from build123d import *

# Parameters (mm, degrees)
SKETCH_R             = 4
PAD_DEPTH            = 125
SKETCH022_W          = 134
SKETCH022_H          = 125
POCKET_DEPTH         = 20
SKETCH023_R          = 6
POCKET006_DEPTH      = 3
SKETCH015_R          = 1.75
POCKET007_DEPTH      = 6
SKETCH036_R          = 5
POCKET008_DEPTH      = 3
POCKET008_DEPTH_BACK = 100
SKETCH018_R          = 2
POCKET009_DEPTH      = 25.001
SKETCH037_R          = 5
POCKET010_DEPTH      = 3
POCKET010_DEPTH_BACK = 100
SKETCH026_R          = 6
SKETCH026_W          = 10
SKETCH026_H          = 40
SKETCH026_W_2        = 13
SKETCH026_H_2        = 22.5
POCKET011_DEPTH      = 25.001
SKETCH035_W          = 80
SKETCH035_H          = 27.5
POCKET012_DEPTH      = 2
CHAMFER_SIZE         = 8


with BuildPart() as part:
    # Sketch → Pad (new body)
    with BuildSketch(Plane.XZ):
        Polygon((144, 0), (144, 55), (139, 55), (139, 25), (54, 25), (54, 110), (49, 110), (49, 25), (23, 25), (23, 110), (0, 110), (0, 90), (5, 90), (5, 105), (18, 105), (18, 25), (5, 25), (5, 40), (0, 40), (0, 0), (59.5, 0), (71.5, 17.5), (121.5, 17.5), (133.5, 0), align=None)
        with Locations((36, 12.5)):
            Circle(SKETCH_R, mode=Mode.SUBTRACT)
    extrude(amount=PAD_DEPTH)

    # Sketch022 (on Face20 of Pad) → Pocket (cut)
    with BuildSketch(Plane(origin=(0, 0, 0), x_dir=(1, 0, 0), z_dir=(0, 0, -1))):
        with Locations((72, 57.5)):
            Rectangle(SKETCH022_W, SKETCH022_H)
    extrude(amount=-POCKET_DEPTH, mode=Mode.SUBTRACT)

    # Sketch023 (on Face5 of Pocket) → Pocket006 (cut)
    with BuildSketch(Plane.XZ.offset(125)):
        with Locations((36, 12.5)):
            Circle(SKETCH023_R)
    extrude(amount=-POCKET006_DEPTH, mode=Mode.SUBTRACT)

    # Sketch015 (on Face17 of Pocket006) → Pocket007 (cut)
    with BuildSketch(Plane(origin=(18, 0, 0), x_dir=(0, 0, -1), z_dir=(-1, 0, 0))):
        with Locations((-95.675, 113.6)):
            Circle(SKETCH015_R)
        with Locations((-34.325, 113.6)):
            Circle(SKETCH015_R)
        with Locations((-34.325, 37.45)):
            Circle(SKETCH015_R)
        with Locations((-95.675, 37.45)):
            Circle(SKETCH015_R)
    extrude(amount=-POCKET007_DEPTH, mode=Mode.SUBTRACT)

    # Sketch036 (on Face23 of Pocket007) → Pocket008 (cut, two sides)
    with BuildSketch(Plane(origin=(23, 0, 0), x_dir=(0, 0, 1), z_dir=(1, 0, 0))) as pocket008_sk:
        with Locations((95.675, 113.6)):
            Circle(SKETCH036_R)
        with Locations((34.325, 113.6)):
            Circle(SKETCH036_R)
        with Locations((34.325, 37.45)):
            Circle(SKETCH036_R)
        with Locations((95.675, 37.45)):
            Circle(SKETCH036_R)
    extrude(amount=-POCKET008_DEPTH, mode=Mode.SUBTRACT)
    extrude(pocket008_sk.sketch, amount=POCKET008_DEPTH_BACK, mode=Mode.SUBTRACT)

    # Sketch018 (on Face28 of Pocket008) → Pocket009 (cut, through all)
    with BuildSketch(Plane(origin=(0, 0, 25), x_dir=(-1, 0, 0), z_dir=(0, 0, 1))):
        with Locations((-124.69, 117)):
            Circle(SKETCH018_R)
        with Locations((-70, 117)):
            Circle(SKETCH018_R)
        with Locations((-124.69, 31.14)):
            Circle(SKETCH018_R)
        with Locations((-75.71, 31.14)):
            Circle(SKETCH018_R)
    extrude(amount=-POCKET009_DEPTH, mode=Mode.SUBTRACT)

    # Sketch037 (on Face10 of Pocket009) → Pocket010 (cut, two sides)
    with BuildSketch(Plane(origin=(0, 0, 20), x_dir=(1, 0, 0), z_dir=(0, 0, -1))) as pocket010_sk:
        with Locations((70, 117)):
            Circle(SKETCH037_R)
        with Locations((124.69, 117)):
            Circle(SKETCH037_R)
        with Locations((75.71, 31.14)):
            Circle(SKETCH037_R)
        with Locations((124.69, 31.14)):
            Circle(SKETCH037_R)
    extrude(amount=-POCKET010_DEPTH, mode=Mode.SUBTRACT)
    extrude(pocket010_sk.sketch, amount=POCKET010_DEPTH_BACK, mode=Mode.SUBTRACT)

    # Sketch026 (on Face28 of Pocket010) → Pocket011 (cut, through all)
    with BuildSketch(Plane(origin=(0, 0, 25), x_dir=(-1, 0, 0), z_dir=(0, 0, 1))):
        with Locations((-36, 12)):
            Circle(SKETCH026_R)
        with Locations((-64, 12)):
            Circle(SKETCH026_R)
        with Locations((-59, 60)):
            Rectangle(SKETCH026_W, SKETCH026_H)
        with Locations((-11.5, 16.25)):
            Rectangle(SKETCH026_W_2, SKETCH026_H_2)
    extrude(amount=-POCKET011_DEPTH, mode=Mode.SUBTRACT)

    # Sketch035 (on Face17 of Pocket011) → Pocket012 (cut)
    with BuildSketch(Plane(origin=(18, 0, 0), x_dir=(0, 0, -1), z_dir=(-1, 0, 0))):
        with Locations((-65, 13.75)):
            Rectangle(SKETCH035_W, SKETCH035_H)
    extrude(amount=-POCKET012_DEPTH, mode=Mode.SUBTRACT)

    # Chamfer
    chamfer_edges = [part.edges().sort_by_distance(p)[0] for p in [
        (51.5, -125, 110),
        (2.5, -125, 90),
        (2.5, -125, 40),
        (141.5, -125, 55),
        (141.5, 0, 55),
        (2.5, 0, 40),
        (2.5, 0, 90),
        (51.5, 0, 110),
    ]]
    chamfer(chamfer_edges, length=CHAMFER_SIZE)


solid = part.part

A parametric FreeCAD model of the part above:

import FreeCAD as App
import Part
import Sketcher

V = App.Vector
Q = App.Units.Quantity


def edges_at(feature, points):
    """Names of the edges that pass closest to the given points."""
    edges = feature.Shape.Edges
    near = lambda p: min(range(len(edges)), key=lambda i: edges[i].distToShape(Part.Vertex(*p))[0])
    return sorted({f"Edge{near(p) + 1}" for p in points})

doc = App.newDocument("Part")
body = doc.addObject("PartDesign::Body", "Body")

sketch1 = body.newObject("Sketcher::SketchObject", "Sketch")
sketch1.AttachmentSupport = (doc.getObject("XZ_Plane"), [""])
sketch1.MapMode = "FlatFace"
sketch1.addGeometry([
    Part.LineSegment(V(144, 0, 0), V(144, 55, 0)),
    Part.LineSegment(V(144, 55, 0), V(139, 55, 0)),
    Part.LineSegment(V(139, 55, 0), V(139, 25, 0)),
    Part.LineSegment(V(139, 25, 0), V(54, 25, 0)),
    Part.LineSegment(V(54, 25, 0), V(54, 110, 0)),
    Part.LineSegment(V(54, 110, 0), V(49, 110, 0)),
    Part.LineSegment(V(49, 110, 0), V(49, 25, 0)),
    Part.LineSegment(V(49, 25, 0), V(23, 25, 0)),
    Part.LineSegment(V(23, 25, 0), V(23, 110, 0)),
    Part.LineSegment(V(23, 110, 0), V(0, 110, 0)),
    Part.LineSegment(V(0, 110, 0), V(0, 90, 0)),
    Part.LineSegment(V(0, 90, 0), V(5, 90, 0)),
    Part.LineSegment(V(5, 90, 0), V(5, 105, 0)),
    Part.LineSegment(V(5, 105, 0), V(18, 105, 0)),
    Part.LineSegment(V(18, 105, 0), V(18, 25, 0)),
    Part.LineSegment(V(18, 25, 0), V(5, 25, 0)),
    Part.LineSegment(V(5, 25, 0), V(5, 40, 0)),
    Part.LineSegment(V(5, 40, 0), V(0, 40, 0)),
    Part.LineSegment(V(0, 40, 0), V(0, 0, 0)),
    Part.LineSegment(V(0, 0, 0), V(59.5, 0, 0)),
    Part.LineSegment(V(59.5, 0, 0), V(71.5, 17.5, 0)),
    Part.LineSegment(V(71.5, 17.5, 0), V(121.5, 17.5, 0)),
    Part.LineSegment(V(121.5, 17.5, 0), V(133.5, 0, 0)),
    Part.LineSegment(V(133.5, 0, 0), V(144, 0, 0)),
    Part.Circle(V(36, 12.5, 0), V(0, 0, 1), 4),
], False)
sketch1.addConstraint([
    Sketcher.Constraint("Coincident", 0, 2, 1, 1),
    Sketcher.Constraint("Coincident", 1, 2, 2, 1),
    Sketcher.Constraint("Coincident", 2, 2, 3, 1),
    Sketcher.Constraint("Coincident", 3, 2, 4, 1),
    Sketcher.Constraint("Coincident", 4, 2, 5, 1),
    Sketcher.Constraint("Coincident", 5, 2, 6, 1),
    Sketcher.Constraint("Coincident", 6, 2, 7, 1),
    Sketcher.Constraint("Coincident", 7, 2, 8, 1),
    Sketcher.Constraint("Coincident", 8, 2, 9, 1),
    Sketcher.Constraint("Coincident", 9, 2, 10, 1),
    Sketcher.Constraint("Coincident", 10, 2, 11, 1),
    Sketcher.Constraint("Coincident", 11, 2, 12, 1),
    Sketcher.Constraint("Coincident", 12, 2, 13, 1),
    Sketcher.Constraint("Coincident", 13, 2, 14, 1),
    Sketcher.Constraint("Coincident", 14, 2, 15, 1),
    Sketcher.Constraint("Coincident", 15, 2, 16, 1),
    Sketcher.Constraint("Coincident", 16, 2, 17, 1),
    Sketcher.Constraint("Coincident", 17, 2, 18, 1),
    Sketcher.Constraint("Coincident", 18, 2, 19, 1),
    Sketcher.Constraint("Coincident", 19, 2, 20, 1),
    Sketcher.Constraint("Coincident", 20, 2, 21, 1),
    Sketcher.Constraint("Coincident", 21, 2, 22, 1),
    Sketcher.Constraint("Coincident", 22, 2, 23, 1),
    Sketcher.Constraint("Coincident", 23, 2, 0, 1),
    Sketcher.Constraint("Vertical", 0),
    Sketcher.Constraint("Horizontal", 1),
    Sketcher.Constraint("Vertical", 2),
    Sketcher.Constraint("Horizontal", 3),
    Sketcher.Constraint("Vertical", 4),
    Sketcher.Constraint("Horizontal", 5),
    Sketcher.Constraint("Vertical", 6),
    Sketcher.Constraint("Horizontal", 7),
    Sketcher.Constraint("Vertical", 8),
    Sketcher.Constraint("Horizontal", 9),
    Sketcher.Constraint("Vertical", 10),
    Sketcher.Constraint("Horizontal", 11),
    Sketcher.Constraint("Vertical", 12),
    Sketcher.Constraint("Horizontal", 13),
    Sketcher.Constraint("Vertical", 14),
    Sketcher.Constraint("Horizontal", 15),
    Sketcher.Constraint("Vertical", 16),
    Sketcher.Constraint("Horizontal", 17),
    Sketcher.Constraint("Vertical", 18),
    Sketcher.Constraint("Horizontal", 19),
    Sketcher.Constraint("Horizontal", 21),
    Sketcher.Constraint("Horizontal", 23),
    Sketcher.Constraint("Coincident", 18, 2, -1, 1),
    Sketcher.Constraint("PointOnObject", 9, 2, -2),
    Sketcher.Constraint("PointOnObject", 22, 2, -1),
    Sketcher.Constraint("Horizontal", 3, 2, 6, 2),
    Sketcher.Constraint("Horizontal", 5, 2, 8, 2),
    Sketcher.Constraint("Horizontal", 7, 2, 14, 2),
    Sketcher.Constraint("Vertical", 12, 2, 15, 2),
    Sketcher.Constraint("Equal", 1, 5),
    Sketcher.Constraint("Equal", 5, 11),
    Sketcher.Constraint("Equal", 3, 4),
    Sketcher.Constraint("Equal", 12, 16),
    Sketcher.Constraint("Equal", 20, 22),
    Sketcher.Constraint("Diameter", 24, Q("8 mm")),
    Sketcher.Constraint("DistanceX", 1, 2, 1, 1, Q("5 mm")),
    Sketcher.Constraint("DistanceX", 3, 2, 3, 1, Q("85 mm")),
    Sketcher.Constraint("DistanceX", 7, 2, 7, 1, Q("26 mm")),
    Sketcher.Constraint("DistanceX", 9, 2, 9, 1, Q("23 mm")),
    Sketcher.Constraint("DistanceX", 13, 1, 13, 2, Q("13 mm")),
    Sketcher.Constraint("DistanceX", 21, 1, 21, 2, Q("50 mm")),
    Sketcher.Constraint("DistanceY", 0, 1, 0, 2, Q("55 mm")),
    Sketcher.Constraint("DistanceY", 2, 2, 2, 1, Q("30 mm")),
    Sketcher.Constraint("DistanceY", 10, 2, 10, 1, Q("20 mm")),
    Sketcher.Constraint("DistanceY", 12, 1, 12, 2, Q("15 mm")),
    Sketcher.Constraint("DistanceX", 19, 1, 19, 2, Q("59.5 mm")),
    Sketcher.Constraint("DistanceX", 23, 1, 23, 2, Q("10.5 mm")),
    Sketcher.Constraint("DistanceX", -1, 1, 24, 3, Q("36 mm")),
    Sketcher.Constraint("DistanceY", 24, 3, 20, 2, Q("5 mm")),
    Sketcher.Constraint("DistanceY", -1, 1, 24, 3, Q("12.5 mm")),
])
pad1 = body.newObject("PartDesign::Pad", "Pad")
pad1.Profile = sketch1
pad1.Length = 125

sketch2 = body.newObject("Sketcher::SketchObject", "Sketch001")
sketch2.AttachmentSupport = (doc.getObject("XY_Plane"), [""])
sketch2.MapMode = "FlatFace"
sketch2.addGeometry([
    Part.LineSegment(V(5, -120, 0), V(5, 5, 0)),
    Part.LineSegment(V(5, 5, 0), V(139, 5, 0)),
    Part.LineSegment(V(139, 5, 0), V(139, -120, 0)),
    Part.LineSegment(V(139, -120, 0), V(5, -120, 0)),
], False)
sketch2.addConstraint([
    Sketcher.Constraint("Coincident", 0, 2, 1, 1),
    Sketcher.Constraint("Coincident", 1, 2, 2, 1),
    Sketcher.Constraint("Coincident", 2, 2, 3, 1),
    Sketcher.Constraint("Coincident", 3, 2, 0, 1),
    Sketcher.Constraint("Vertical", 0),
    Sketcher.Constraint("Horizontal", 1),
    Sketcher.Constraint("Vertical", 2),
    Sketcher.Constraint("Horizontal", 3),
    Sketcher.Constraint("DistanceX", 1, 1, 1, 2, Q("134 mm")),
    Sketcher.Constraint("DistanceY", 0, 1, 0, 2, Q("125 mm")),
    Sketcher.Constraint("DistanceX", -1, 1, 0, 2, Q("5 mm")),
    Sketcher.Constraint("DistanceY", -1, 1, 0, 2, Q("5 mm")),
])
pocket1 = body.newObject("PartDesign::Pocket", "Pocket")
pocket1.Profile = sketch2
pocket1.Length = 20
pocket1.Reversed = True

sketch3 = body.newObject("Sketcher::SketchObject", "Sketch002")
sketch3.AttachmentSupport = (doc.getObject("XZ_Plane"), [""])
sketch3.MapMode = "FlatFace"
sketch3.AttachmentOffset = App.Placement(V(0, 0, 125), App.Rotation())
sketch3.addGeometry(Part.Circle(V(36, 12, 0), V(0, 0, 1), 6), False)
sketch3.addConstraint([
    Sketcher.Constraint("Diameter", 0, Q("12 mm")),
    Sketcher.Constraint("DistanceX", -1, 1, 0, 3, Q("36 mm")),
    Sketcher.Constraint("DistanceY", -1, 1, 0, 3, Q("12.5 mm")),
])
pocket2 = body.newObject("PartDesign::Pocket", "Pocket001")
pocket2.Profile = sketch3
pocket2.Length = 3

sketch4 = body.newObject("Sketcher::SketchObject", "Sketch003")
sketch4.AttachmentSupport = (doc.getObject("YZ_Plane"), [""])
sketch4.MapMode = "FlatFace"
sketch4.AttachmentOffset = App.Placement(V(0, 0, 18), App.Rotation())
sketch4.addGeometry([
    Part.Circle(V(-113.6, 95.7, 0), V(0, 0, 1), 1.8),
    Part.Circle(V(-113.6, 34.3, 0), V(0, 0, 1), 1.8),
    Part.Circle(V(-37.5, 34.3, 0), V(0, 0, 1), 1.8),
    Part.Circle(V(-37.5, 95.7, 0), V(0, 0, 1), 1.8),
], False)
sketch4.addConstraint([
    Sketcher.Constraint("Equal", 0, 1),
    Sketcher.Constraint("Equal", 1, 2),
    Sketcher.Constraint("Equal", 2, 3),
    Sketcher.Constraint("Horizontal", 1, 3, 2, 3),
    Sketcher.Constraint("Horizontal", 0, 3, 3, 3),
    Sketcher.Constraint("Vertical", 0, 3, 1, 3),
    Sketcher.Constraint("Vertical", 2, 3, 3, 3),
    Sketcher.Constraint("Diameter", 0, Q("3.5 mm")),
    Sketcher.Constraint("DistanceX", 0, 3, -1, 1, Q("113.6 mm")),
    Sketcher.Constraint("DistanceX", 2, 3, -1, 1, Q("37.45 mm")),
    Sketcher.Constraint("DistanceY", 1, 3, 0, 3, Q("61.35 mm")),
    Sketcher.Constraint("DistanceY", -1, 1, 0, 3, Q("95.675 mm")),
])
pocket3 = body.newObject("PartDesign::Pocket", "Pocket002")
pocket3.Profile = sketch4
pocket3.Length = 6
pocket3.Reversed = True

sketch5 = body.newObject("Sketcher::SketchObject", "Sketch004")
sketch5.AttachmentSupport = (doc.getObject("YZ_Plane"), [""])
sketch5.MapMode = "FlatFace"
sketch5.AttachmentOffset = App.Placement(V(0, 0, 23), App.Rotation())
sketch5.addGeometry([
    Part.Circle(V(-114, 96, 0), V(0, 0, 1), 5),
    Part.Circle(V(-114, 34, 0), V(0, 0, 1), 5),
    Part.Circle(V(-37, 34, 0), V(0, 0, 1), 5),
    Part.Circle(V(-37, 96, 0), V(0, 0, 1), 5),
], False)
sketch5.addConstraint([
    Sketcher.Constraint("Equal", 0, 1),
    Sketcher.Constraint("Equal", 1, 2),
    Sketcher.Constraint("Equal", 2, 3),
    Sketcher.Constraint("Horizontal", 1, 3, 2, 3),
    Sketcher.Constraint("Horizontal", 0, 3, 3, 3),
    Sketcher.Constraint("Vertical", 0, 3, 1, 3),
    Sketcher.Constraint("Vertical", 2, 3, 3, 3),
    Sketcher.Constraint("Diameter", 0, Q("10 mm")),
    Sketcher.Constraint("DistanceX", 0, 3, -1, 1, Q("113.6 mm")),
    Sketcher.Constraint("DistanceX", 2, 3, -1, 1, Q("37.45 mm")),
    Sketcher.Constraint("DistanceY", 1, 3, 0, 3, Q("61.35 mm")),
    Sketcher.Constraint("DistanceY", -1, 1, 0, 3, Q("95.675 mm")),
])
pocket4 = body.newObject("PartDesign::Pocket", "Pocket003")
pocket4.Profile = sketch5
pocket4.Type = "TwoLengths"
pocket4.Length = 3
pocket4.Length2 = 100

sketch6 = body.newObject("Sketcher::SketchObject", "Sketch005")
sketch6.AttachmentSupport = (doc.getObject("XY_Plane"), [""])
sketch6.MapMode = "FlatFace"
sketch6.AttachmentOffset = App.Placement(V(0, 0, 25), App.Rotation())
sketch6.addGeometry([
    Part.Circle(V(124.7, -117, 0), V(0, 0, 1), 2),
    Part.Circle(V(70, -117, 0), V(0, 0, 1), 2),
    Part.Circle(V(124.7, -31.1, 0), V(0, 0, 1), 2),
    Part.Circle(V(75.7, -31.1, 0), V(0, 0, 1), 2),
], False)
sketch6.addConstraint([
    Sketcher.Constraint("Equal", 0, 1),
    Sketcher.Constraint("Equal", 1, 2),
    Sketcher.Constraint("Equal", 2, 3),
    Sketcher.Constraint("Horizontal", 0, 3, 1, 3),
    Sketcher.Constraint("Horizontal", 2, 3, 3, 3),
    Sketcher.Constraint("Vertical", 0, 3, 2, 3),
    Sketcher.Constraint("Diameter", 0, Q("4 mm")),
    Sketcher.Constraint("DistanceY", 0, 3, -1, 1, Q("117 mm")),
    Sketcher.Constraint("DistanceX", -1, 1, 1, 3, Q("70 mm")),
    Sketcher.Constraint("DistanceX", -1, 1, 0, 3, Q("124.69 mm")),
    Sketcher.Constraint("DistanceY", 2, 3, -1, 1, Q("31.14 mm")),
    Sketcher.Constraint("DistanceX", -1, 1, 3, 3, Q("75.71 mm")),
])
pocket5 = body.newObject("PartDesign::Pocket", "Pocket004")
pocket5.Profile = sketch6
pocket5.Type = "ThroughAll"

sketch7 = body.newObject("Sketcher::SketchObject", "Sketch006")
sketch7.AttachmentSupport = (doc.getObject("XY_Plane"), [""])
sketch7.MapMode = "FlatFace"
sketch7.AttachmentOffset = App.Placement(V(0, 0, 20), App.Rotation())
sketch7.addGeometry([
    Part.Circle(V(70, -117, 0), V(0, 0, 1), 5),
    Part.Circle(V(125, -117, 0), V(0, 0, 1), 5),
    Part.Circle(V(76, -31, 0), V(0, 0, 1), 5),
    Part.Circle(V(125, -31, 0), V(0, 0, 1), 5),
], False)
sketch7.addConstraint([
    Sketcher.Constraint("Equal", 0, 1),
    Sketcher.Constraint("Equal", 1, 2),
    Sketcher.Constraint("Equal", 2, 3),
    Sketcher.Constraint("Horizontal", 0, 3, 1, 3),
    Sketcher.Constraint("Horizontal", 2, 3, 3, 3),
    Sketcher.Constraint("Vertical", 1, 3, 3, 3),
    Sketcher.Constraint("Diameter", 0, Q("10 mm")),
    Sketcher.Constraint("DistanceX", -1, 1, 0, 3, Q("70 mm")),
    Sketcher.Constraint("DistanceY", 0, 3, -1, 1, Q("117 mm")),
    Sketcher.Constraint("DistanceX", -1, 1, 1, 3, Q("124.69 mm")),
    Sketcher.Constraint("DistanceX", -1, 1, 2, 3, Q("75.71 mm")),
    Sketcher.Constraint("DistanceY", 2, 3, -1, 1, Q("31.14 mm")),
])
pocket6 = body.newObject("PartDesign::Pocket", "Pocket005")
pocket6.Profile = sketch7
pocket6.Type = "TwoLengths"
pocket6.Length = 3
pocket6.Length2 = 100
pocket6.Reversed = True

sketch8 = body.newObject("Sketcher::SketchObject", "Sketch007")
sketch8.AttachmentSupport = (doc.getObject("XY_Plane"), [""])
sketch8.MapMode = "FlatFace"
sketch8.AttachmentOffset = App.Placement(V(0, 0, 25), App.Rotation())
sketch8.addGeometry([
    Part.Circle(V(36, -12, 0), V(0, 0, 1), 6),
    Part.Circle(V(64, -12, 0), V(0, 0, 1), 6),
    Part.LineSegment(V(64, -80, 0), V(64, -40, 0)),
    Part.LineSegment(V(64, -40, 0), V(54, -40, 0)),
    Part.LineSegment(V(54, -40, 0), V(54, -80, 0)),
    Part.LineSegment(V(54, -80, 0), V(64, -80, 0)),
    Part.LineSegment(V(18, -28, 0), V(18, -5, 0)),
    Part.LineSegment(V(18, -5, 0), V(5, -5, 0)),
    Part.LineSegment(V(5, -5, 0), V(5, -28, 0)),
    Part.LineSegment(V(5, -28, 0), V(18, -28, 0)),
], False)
sketch8.addConstraint([
    Sketcher.Constraint("Coincident", 2, 2, 3, 1),
    Sketcher.Constraint("Coincident", 3, 2, 4, 1),
    Sketcher.Constraint("Coincident", 4, 2, 5, 1),
    Sketcher.Constraint("Coincident", 5, 2, 2, 1),
    Sketcher.Constraint("Coincident", 6, 2, 7, 1),
    Sketcher.Constraint("Coincident", 7, 2, 8, 1),
    Sketcher.Constraint("Coincident", 8, 2, 9, 1),
    Sketcher.Constraint("Coincident", 9, 2, 6, 1),
    Sketcher.Constraint("Vertical", 2),
    Sketcher.Constraint("Horizontal", 3),
    Sketcher.Constraint("Vertical", 4),
    Sketcher.Constraint("Horizontal", 5),
    Sketcher.Constraint("Vertical", 6),
    Sketcher.Constraint("Horizontal", 7),
    Sketcher.Constraint("Vertical", 8),
    Sketcher.Constraint("Horizontal", 9),
    Sketcher.Constraint("Equal", 0, 1),
    Sketcher.Constraint("Horizontal", 0, 3, 1, 3),
    Sketcher.Constraint("Vertical", 1, 3, 2, 2),
    Sketcher.Constraint("Diameter", 0, Q("12 mm")),
    Sketcher.Constraint("DistanceX", 3, 2, 3, 1, Q("10 mm")),
    Sketcher.Constraint("DistanceX", 7, 2, 7, 1, Q("13 mm")),
    Sketcher.Constraint("DistanceY", 2, 1, 2, 2, Q("40 mm")),
    Sketcher.Constraint("DistanceY", 6, 1, 6, 2, Q("22.5 mm")),
    Sketcher.Constraint("DistanceX", -1, 1, 0, 3, Q("36 mm")),
    Sketcher.Constraint("DistanceY", 0, 3, -1, 1, Q("12 mm")),
    Sketcher.Constraint("DistanceX", -1, 1, 1, 3, Q("64 mm")),
    Sketcher.Constraint("DistanceY", 2, 2, -1, 1, Q("40 mm")),
    Sketcher.Constraint("DistanceX", -1, 1, 6, 2, Q("18 mm")),
    Sketcher.Constraint("DistanceY", 6, 2, -1, 1, Q("5 mm")),
])
pocket7 = body.newObject("PartDesign::Pocket", "Pocket006")
pocket7.Profile = sketch8
pocket7.Type = "ThroughAll"

sketch9 = body.newObject("Sketcher::SketchObject", "Sketch008")
sketch9.AttachmentSupport = (doc.getObject("YZ_Plane"), [""])
sketch9.MapMode = "FlatFace"
sketch9.AttachmentOffset = App.Placement(V(0, 0, 18), App.Rotation())
sketch9.addGeometry([
    Part.LineSegment(V(-28, 105, 0), V(0, 105, 0)),
    Part.LineSegment(V(0, 105, 0), V(0, 25, 0)),
    Part.LineSegment(V(0, 25, 0), V(-28, 25, 0)),
    Part.LineSegment(V(-28, 25, 0), V(-28, 105, 0)),
], False)
sketch9.addConstraint([
    Sketcher.Constraint("Coincident", 0, 2, 1, 1),
    Sketcher.Constraint("Coincident", 1, 2, 2, 1),
    Sketcher.Constraint("Coincident", 2, 2, 3, 1),
    Sketcher.Constraint("Coincident", 3, 2, 0, 1),
    Sketcher.Constraint("Horizontal", 0),
    Sketcher.Constraint("Vertical", 1),
    Sketcher.Constraint("Horizontal", 2),
    Sketcher.Constraint("Vertical", 3),
    Sketcher.Constraint("PointOnObject", 0, 2, -2),
    Sketcher.Constraint("DistanceY", 1, 2, 1, 1, Q("80 mm")),
    Sketcher.Constraint("DistanceX", 0, 1, 0, 2, Q("27.5 mm")),
    Sketcher.Constraint("DistanceY", -1, 1, 0, 2, Q("105 mm")),
])
pocket8 = body.newObject("PartDesign::Pocket", "Pocket007")
pocket8.Profile = sketch9
pocket8.Length = 2
pocket8.Reversed = True
doc.recompute()

chamfer = body.newObject("PartDesign::Chamfer", "Chamfer")
chamfer.Base = (pocket8, edges_at(pocket8, [
    (51.5, -125, 110),
    (2.5, -125, 90),
    (2.5, -125, 40),
    (141.5, -125, 55),
    (141.5, 0, 55),
    (2.5, 0, 40),
    (2.5, 0, 90),
    (51.5, 0, 110),
]))
chamfer.Size = 8

doc.recompute()
